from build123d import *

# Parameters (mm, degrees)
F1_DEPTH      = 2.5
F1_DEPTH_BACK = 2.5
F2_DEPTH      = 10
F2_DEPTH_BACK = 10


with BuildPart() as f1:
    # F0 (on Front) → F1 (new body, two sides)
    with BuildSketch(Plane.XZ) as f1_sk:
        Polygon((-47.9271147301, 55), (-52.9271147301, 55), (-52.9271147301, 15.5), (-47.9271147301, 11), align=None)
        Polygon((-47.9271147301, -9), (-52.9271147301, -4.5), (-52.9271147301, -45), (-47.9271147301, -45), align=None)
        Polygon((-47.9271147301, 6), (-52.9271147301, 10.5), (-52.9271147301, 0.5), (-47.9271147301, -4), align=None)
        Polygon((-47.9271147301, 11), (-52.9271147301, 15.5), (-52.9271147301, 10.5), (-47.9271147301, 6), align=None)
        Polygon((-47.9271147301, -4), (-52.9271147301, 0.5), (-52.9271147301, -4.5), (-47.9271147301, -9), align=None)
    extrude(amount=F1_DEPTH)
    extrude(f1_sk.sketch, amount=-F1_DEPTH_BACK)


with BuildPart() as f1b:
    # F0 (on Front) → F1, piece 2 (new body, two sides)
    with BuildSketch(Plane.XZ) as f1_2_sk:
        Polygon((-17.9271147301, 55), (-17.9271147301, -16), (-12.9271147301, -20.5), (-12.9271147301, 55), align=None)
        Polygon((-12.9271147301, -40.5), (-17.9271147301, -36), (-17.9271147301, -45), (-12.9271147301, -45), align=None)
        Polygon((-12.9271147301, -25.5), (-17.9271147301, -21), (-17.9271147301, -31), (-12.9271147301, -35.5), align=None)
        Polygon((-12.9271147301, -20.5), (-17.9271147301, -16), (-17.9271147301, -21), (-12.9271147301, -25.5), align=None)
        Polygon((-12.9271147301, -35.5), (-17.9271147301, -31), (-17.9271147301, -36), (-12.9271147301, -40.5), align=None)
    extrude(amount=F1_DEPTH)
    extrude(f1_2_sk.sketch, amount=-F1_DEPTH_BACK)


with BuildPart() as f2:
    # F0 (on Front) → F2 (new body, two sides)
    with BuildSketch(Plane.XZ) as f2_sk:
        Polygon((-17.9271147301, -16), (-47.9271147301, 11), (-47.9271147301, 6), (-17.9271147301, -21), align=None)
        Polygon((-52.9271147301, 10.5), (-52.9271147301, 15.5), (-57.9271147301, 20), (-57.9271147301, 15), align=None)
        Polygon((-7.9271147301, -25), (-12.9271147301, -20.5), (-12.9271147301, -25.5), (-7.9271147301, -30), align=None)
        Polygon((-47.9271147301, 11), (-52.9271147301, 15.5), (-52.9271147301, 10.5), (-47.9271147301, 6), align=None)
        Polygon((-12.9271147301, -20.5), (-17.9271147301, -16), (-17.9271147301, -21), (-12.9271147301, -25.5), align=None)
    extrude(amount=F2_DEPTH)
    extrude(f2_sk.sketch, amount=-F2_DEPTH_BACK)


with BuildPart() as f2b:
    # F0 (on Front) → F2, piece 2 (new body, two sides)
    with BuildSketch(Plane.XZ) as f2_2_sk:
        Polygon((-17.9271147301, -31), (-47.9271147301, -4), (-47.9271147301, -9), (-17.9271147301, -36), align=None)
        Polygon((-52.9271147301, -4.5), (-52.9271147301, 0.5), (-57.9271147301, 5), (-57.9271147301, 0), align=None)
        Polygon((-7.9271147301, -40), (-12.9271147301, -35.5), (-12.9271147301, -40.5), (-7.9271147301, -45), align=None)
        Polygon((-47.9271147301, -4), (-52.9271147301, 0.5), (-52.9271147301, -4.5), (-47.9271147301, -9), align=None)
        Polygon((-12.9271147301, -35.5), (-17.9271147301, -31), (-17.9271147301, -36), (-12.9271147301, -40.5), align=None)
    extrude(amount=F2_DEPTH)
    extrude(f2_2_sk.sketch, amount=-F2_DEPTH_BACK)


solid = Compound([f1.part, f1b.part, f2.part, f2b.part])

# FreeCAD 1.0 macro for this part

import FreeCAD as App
import Part
import Sketcher
from FreeCAD import Vector
Q = App.Units.Quantity

doc = App.newDocument("Part")
params = doc.addObject("Spreadsheet::Sheet", "Params")
for row, (alias, value) in enumerate([
    ("sketch1_width", "5 mm"),
    ("sketch1_height", "100 mm"),
    ("pad1_length", "2.5 mm"),
    ("pad1_length2", "2.5 mm"),
    ("sketch2_width", "5 mm"),
    ("sketch2_height", "100 mm"),
    ("pad2_length", "2.5 mm"),
    ("pad2_length2", "2.5 mm"),
    ("sketch3_height", "5 mm"),
    ("pad3_length", "10 mm"),
    ("pad3_length2", "10 mm"),
    ("sketch4_height", "5 mm"),
    ("pad4_length", "10 mm"),
    ("pad4_length2", "10 mm"),
], start=1):
    params.set(f"A{row}", alias)
    params.set(f"B{row}", "=" + value)
    params.setAlias(f"B{row}", alias)

body = doc.addObject("PartDesign::Body", "Body")

sketch1 = body.newObject("Sketcher::SketchObject", "Sketch")
sketch1.AttachmentSupport = (doc.getObject("XZ_Plane"), [""])
sketch1.MapMode = "FlatFace"
sketch1.addGeometry(Part.LineSegment(Vector(-47.927115, 55, 0), Vector(-52.927115, 55, 0)), False)
sketch1.addGeometry(Part.LineSegment(Vector(-52.927115, 55, 0), Vector(-52.927115, -45, 0)), False)
sketch1.addGeometry(Part.LineSegment(Vector(-52.927115, -45, 0), Vector(-47.927115, -45, 0)), False)
sketch1.addGeometry(Part.LineSegment(Vector(-47.927115, -45, 0), Vector(-47.927115, 55, 0)), False)
sketch1.addConstraint(Sketcher.Constraint("Coincident", 0, 2, 1, 1))
sketch1.addConstraint(Sketcher.Constraint("Coincident", 1, 2, 2, 1))
sketch1.addConstraint(Sketcher.Constraint("Coincident", 2, 2, 3, 1))
sketch1.addConstraint(Sketcher.Constraint("Coincident", 3, 2, 0, 1))
sketch1.addConstraint(Sketcher.Constraint("Horizontal", 0))
sketch1.addConstraint(Sketcher.Constraint("Vertical", 1))
sketch1.addConstraint(Sketcher.Constraint("Horizontal", 2))
sketch1.addConstraint(Sketcher.Constraint("Vertical", 3))
sketch1.addConstraint(Sketcher.Constraint("DistanceX", 0, 2, 0, 1, Q("5 mm")))
sketch1.addConstraint(Sketcher.Constraint("DistanceY", 1, 2, 1, 1, Q("100 mm")))
sketch1.addConstraint(Sketcher.Constraint("DistanceY", -1, 1, 0, 2, Q("55 mm")))
sketch1.addConstraint(Sketcher.Constraint("DistanceX", 0, 2, -1, 1, Q("52.927115 mm")))
sketch1.setExpression("Constraints[8]", "Params.sketch1_width")
sketch1.setExpression("Constraints[9]", "Params.sketch1_height")
pad1 = body.newObject("PartDesign::Pad", "Pad")
pad1.Profile = sketch1
pad1.Type = "TwoLengths"
pad1.setExpression("Length", "Params.pad1_length")
pad1.setExpression("Length2", "Params.pad1_length2")
body2 = doc.addObject("PartDesign::Body", "Body001")

sketch2 = body2.newObject("Sketcher::SketchObject", "Sketch001")
sketch2.AttachmentSupport = (doc.getObject("XZ_Plane001"), [""])
sketch2.MapMode = "FlatFace"
sketch2.addGeometry(Part.LineSegment(Vector(-17.927115, 55, 0), Vector(-17.927115, -45, 0)), False)
sketch2.addGeometry(Part.LineSegment(Vector(-17.927115, -45, 0), Vector(-12.927115, -45, 0)), False)
sketch2.addGeometry(Part.LineSegment(Vector(-12.927115, -45, 0), Vector(-12.927115, 55, 0)), False)
sketch2.addGeometry(Part.LineSegment(Vector(-12.927115, 55, 0), Vector(-17.927115, 55, 0)), False)
sketch2.addConstraint(Sketcher.Constraint("Coincident", 0, 2, 1, 1))
sketch2.addConstraint(Sketcher.Constraint("Coincident", 1, 2, 2, 1))
sketch2.addConstraint(Sketcher.Constraint("Coincident", 2, 2, 3, 1))
sketch2.addConstraint(Sketcher.Constraint("Coincident", 3, 2, 0, 1))
sketch2.addConstraint(Sketcher.Constraint("Vertical", 0))
sketch2.addConstraint(Sketcher.Constraint("Horizontal", 1))
sketch2.addConstraint(Sketcher.Constraint("Vertical", 2))
sketch2.addConstraint(Sketcher.Constraint("Horizontal", 3))
sketch2.addConstraint(Sketcher.Constraint("DistanceX", 1, 1, 1, 2, Q("5 mm")))
sketch2.addConstraint(Sketcher.Constraint("DistanceY", 0, 2, 0, 1, Q("100 mm")))
sketch2.addConstraint(Sketcher.Constraint("DistanceY", 0, 2, -1, 1, Q("45 mm")))
sketch2.addConstraint(Sketcher.Constraint("DistanceX", 0, 2, -1, 1, Q("17.927115 mm")))
sketch2.setExpression("Constraints[8]", "Params.sketch2_width")
sketch2.setExpression("Constraints[9]", "Params.sketch2_height")
pad2 = body2.newObject("PartDesign::Pad", "Pad001")
pad2.Profile = sketch2
pad2.Type = "TwoLengths"
pad2.setExpression("Length", "Params.pad2_length")
pad2.setExpression("Length2", "Params.pad2_length2")
body3 = doc.addObject("PartDesign::Body", "Body002")

sketch3 = body3.newObject("Sketcher::SketchObject", "Sketch002")
sketch3.AttachmentSupport = (doc.getObject("XZ_Plane002"), [""])
sketch3.MapMode = "FlatFace"
sketch3.addGeometry(Part.LineSegment(Vector(-57.927115, 20, 0), Vector(-57.927115, 15, 0)), False)
sketch3.addGeometry(Part.LineSegment(Vector(-57.927115, 15, 0), Vector(-7.927115, -30, 0)), False)
sketch3.addGeometry(Part.LineSegment(Vector(-7.927115, -30, 0), Vector(-7.927115, -25, 0)), False)
sketch3.addGeometry(Part.LineSegment(Vector(-7.927115, -25, 0), Vector(-57.927115, 20, 0)), False)
sketch3.addConstraint(Sketcher.Constraint("Coincident", 0, 2, 1, 1))
sketch3.addConstraint(Sketcher.Constraint("Coincident", 1, 2, 2, 1))
sketch3.addConstraint(Sketcher.Constraint("Coincident", 2, 2, 3, 1))
sketch3.addConstraint(Sketcher.Constraint("Coincident", 3, 2, 0, 1))
sketch3.addConstraint(Sketcher.Constraint("Vertical", 0))
sketch3.addConstraint(Sketcher.Constraint("Vertical", 2))
sketch3.addConstraint(Sketcher.Constraint("Parallel", 1, 3))
sketch3.addConstraint(Sketcher.Constraint("DistanceY", 0, 2, 0, 1, Q("5 mm")))
sketch3.addConstraint(Sketcher.Constraint("DistanceY", -1, 1, 0, 2, Q("15 mm")))
sketch3.addConstraint(Sketcher.Constraint("DistanceY", 1, 2, -1, 1, Q("30 mm")))
sketch3.addConstraint(Sketcher.Constraint("DistanceX", 0, 2, 1, 2, Q("50 mm")))
sketch3.addConstraint(Sketcher.Constraint("DistanceX", 0, 2, -1, 1, Q("57.927115 mm")))
sketch3.setExpression("Constraints[7]", "Params.sketch3_height")
pad3 = body3.newObject("PartDesign::Pad", "Pad002")
pad3.Profile = sketch3
pad3.Type = "TwoLengths"
pad3.setExpression("Length", "Params.pad3_length")
pad3.setExpression("Length2", "Params.pad3_length2")
body4 = doc.addObject("PartDesign::Body", "Body003")

sketch4 = body4.newObject("Sketcher::SketchObject", "Sketch003")
sketch4.AttachmentSupport = (doc.getObject("XZ_Plane003"), [""])
sketch4.MapMode = "FlatFace"
sketch4.addGeometry(Part.LineSegment(Vector(-57.927115, 5, 0), Vector(-57.927115, 0, 0)), False)
sketch4.addGeometry(Part.LineSegment(Vector(-57.927115, 0, 0), Vector(-7.927115, -45, 0)), False)
sketch4.addGeometry(Part.LineSegment(Vector(-7.927115, -45, 0), Vector(-7.927115, -40, 0)), False)
sketch4.addGeometry(Part.LineSegment(Vector(-7.927115, -40, 0), Vector(-57.927115, 5, 0)), False)
sketch4.addConstraint(Sketcher.Constraint("Coincident", 0, 2, 1, 1))
sketch4.addConstraint(Sketcher.Constraint("Coincident", 1, 2, 2, 1))
sketch4.addConstraint(Sketcher.Constraint("Coincident", 2, 2, 3, 1))
sketch4.addConstraint(Sketcher.Constraint("Coincident", 3, 2, 0, 1))
sketch4.addConstraint(Sketcher.Constraint("Vertical", 0))
sketch4.addConstraint(Sketcher.Constraint("Vertical", 2))
sketch4.addConstraint(Sketcher.Constraint("PointOnObject", 0, 2, -1))
sketch4.addConstraint(Sketcher.Constraint("Parallel", 1, 3))
sketch4.addConstraint(Sketcher.Constraint("DistanceY", 0, 2, 0, 1, Q("5 mm")))
sketch4.addConstraint(Sketcher.Constraint("DistanceY", 1, 2, -1, 1, Q("45 mm")))
sketch4.addConstraint(Sketcher.Constraint("DistanceX", 0, 2, 1, 2, Q("50 mm")))
sketch4.addConstraint(Sketcher.Constraint("DistanceX", 0, 2, -1, 1, Q("57.927115 mm")))
sketch4.setExpression("Constraints[8]", "Params.sketch4_height")
pad4 = body4.newObject("PartDesign::Pad", "Pad003")
pad4.Profile = sketch4
pad4.Type = "TwoLengths"
pad4.setExpression("Length", "Params.pad4_length")
pad4.setExpression("Length2", "Params.pad4_length2")

doc.recompute()
